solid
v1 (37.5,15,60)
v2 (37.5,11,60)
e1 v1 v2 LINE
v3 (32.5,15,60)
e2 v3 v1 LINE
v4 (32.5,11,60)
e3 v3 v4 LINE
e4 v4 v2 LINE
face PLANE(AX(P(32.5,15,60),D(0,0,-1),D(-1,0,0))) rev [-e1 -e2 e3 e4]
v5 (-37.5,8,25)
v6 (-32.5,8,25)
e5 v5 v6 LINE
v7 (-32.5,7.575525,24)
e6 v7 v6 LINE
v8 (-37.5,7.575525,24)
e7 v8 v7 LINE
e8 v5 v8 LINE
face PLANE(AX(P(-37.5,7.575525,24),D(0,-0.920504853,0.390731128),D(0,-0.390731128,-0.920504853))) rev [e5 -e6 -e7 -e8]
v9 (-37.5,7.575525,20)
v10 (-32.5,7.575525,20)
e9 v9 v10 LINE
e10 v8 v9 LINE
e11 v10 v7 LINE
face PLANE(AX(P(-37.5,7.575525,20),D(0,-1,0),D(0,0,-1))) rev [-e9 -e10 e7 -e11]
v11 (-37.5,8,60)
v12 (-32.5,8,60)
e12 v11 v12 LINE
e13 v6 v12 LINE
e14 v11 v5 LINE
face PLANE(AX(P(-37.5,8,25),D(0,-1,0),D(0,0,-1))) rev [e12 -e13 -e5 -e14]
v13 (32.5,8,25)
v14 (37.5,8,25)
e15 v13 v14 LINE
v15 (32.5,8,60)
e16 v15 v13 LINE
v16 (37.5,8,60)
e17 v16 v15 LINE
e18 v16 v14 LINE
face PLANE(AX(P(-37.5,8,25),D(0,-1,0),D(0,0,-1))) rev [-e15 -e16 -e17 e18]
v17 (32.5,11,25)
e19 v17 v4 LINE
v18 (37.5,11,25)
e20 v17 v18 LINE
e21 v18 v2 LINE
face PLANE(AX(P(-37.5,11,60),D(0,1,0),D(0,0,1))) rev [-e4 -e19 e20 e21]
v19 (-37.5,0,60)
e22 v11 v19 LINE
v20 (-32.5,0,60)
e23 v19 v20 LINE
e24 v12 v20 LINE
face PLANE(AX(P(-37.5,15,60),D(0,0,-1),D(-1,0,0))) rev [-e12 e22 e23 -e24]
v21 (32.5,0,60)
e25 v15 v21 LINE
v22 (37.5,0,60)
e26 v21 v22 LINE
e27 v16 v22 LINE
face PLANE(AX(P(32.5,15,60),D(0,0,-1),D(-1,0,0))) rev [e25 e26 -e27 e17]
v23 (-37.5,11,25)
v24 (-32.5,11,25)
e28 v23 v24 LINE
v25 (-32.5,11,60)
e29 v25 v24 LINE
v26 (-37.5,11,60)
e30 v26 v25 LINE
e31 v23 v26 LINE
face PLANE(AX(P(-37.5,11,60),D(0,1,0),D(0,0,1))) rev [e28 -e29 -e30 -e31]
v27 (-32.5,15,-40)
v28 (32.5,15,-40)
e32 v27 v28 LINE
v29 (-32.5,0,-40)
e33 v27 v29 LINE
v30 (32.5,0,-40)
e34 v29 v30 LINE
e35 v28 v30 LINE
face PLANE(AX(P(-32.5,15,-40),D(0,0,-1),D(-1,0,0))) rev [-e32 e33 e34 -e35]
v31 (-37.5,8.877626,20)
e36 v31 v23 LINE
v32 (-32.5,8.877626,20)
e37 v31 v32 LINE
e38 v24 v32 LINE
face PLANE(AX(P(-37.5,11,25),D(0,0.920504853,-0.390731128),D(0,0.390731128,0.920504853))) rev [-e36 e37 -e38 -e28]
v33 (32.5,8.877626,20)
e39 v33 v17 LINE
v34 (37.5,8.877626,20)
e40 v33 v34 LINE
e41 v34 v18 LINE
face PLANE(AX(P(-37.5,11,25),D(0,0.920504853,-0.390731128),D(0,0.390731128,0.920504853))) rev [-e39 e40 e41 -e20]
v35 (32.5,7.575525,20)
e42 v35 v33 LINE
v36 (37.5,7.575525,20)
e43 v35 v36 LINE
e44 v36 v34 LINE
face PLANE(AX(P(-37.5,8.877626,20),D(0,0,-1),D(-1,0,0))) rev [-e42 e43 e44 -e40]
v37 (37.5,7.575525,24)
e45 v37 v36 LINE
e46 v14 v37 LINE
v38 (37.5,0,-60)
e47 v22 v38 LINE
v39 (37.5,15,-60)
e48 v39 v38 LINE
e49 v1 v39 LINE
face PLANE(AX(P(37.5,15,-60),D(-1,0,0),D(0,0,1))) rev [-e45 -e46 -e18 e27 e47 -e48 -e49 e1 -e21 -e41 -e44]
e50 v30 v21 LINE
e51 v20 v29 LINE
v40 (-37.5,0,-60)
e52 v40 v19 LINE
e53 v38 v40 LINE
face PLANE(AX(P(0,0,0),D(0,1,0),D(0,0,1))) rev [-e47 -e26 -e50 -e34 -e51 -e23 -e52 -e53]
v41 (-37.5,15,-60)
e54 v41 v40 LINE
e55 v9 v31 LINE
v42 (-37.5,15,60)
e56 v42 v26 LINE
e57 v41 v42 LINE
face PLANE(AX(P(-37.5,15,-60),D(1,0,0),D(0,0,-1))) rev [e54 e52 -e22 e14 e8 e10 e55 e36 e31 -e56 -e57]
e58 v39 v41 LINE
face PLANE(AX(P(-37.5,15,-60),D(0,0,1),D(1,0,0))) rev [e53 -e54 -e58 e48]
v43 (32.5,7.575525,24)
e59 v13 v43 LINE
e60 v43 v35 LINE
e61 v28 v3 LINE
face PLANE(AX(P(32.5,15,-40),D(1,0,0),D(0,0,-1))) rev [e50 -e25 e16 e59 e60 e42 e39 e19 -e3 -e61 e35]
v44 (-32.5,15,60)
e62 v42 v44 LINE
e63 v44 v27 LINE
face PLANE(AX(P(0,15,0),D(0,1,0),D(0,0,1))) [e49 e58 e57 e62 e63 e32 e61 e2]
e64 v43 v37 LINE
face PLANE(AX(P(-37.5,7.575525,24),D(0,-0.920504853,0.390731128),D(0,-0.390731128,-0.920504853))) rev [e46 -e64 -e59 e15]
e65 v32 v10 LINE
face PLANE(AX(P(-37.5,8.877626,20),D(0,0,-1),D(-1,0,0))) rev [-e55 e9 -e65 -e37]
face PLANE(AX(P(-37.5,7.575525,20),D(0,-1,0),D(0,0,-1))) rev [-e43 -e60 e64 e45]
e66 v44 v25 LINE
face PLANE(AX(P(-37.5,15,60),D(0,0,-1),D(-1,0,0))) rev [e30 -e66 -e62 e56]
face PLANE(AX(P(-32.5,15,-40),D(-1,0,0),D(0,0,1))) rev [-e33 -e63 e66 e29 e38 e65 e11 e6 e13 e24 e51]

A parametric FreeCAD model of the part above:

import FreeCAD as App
import Part
import Sketcher
from FreeCAD import Vector
Q = App.Units.Quantity

doc = App.newDocument("Part")
body = doc.addObject("PartDesign::Body", "Body")

sketch1 = body.newObject("Sketcher::SketchObject", "Sketch")
sketch1.AttachmentSupport = (doc.getObject("XZ_Plane"), [""])
sketch1.MapMode = "FlatFace"
sketch1.addGeometry(Part.LineSegment(Vector(32, 60, 0), Vector(38, 60, 0)), False)
sketch1.addGeometry(Part.LineSegment(Vector(38, 60, 0), Vector(38, -60, 0)), False)
sketch1.addGeometry(Part.LineSegment(Vector(38, -60, 0), Vector(-38, -60, 0)), False)
sketch1.addGeometry(Part.LineSegment(Vector(-38, -60, 0), Vector(-38, 60, 0)), False)
sketch1.addGeometry(Part.LineSegment(Vector(-38, 60, 0), Vector(-32, 60, 0)), False)
sketch1.addGeometry(Part.LineSegment(Vector(-32, 60, 0), Vector(-32, -40, 0)), False)
sketch1.addGeometry(Part.LineSegment(Vector(-32, -40, 0), Vector(32, -40, 0)), False)
sketch1.addGeometry(Part.LineSegment(Vector(32, -40, 0), Vector(32, 60, 0)), False)
sketch1.addConstraint(Sketcher.Constraint("Coincident", 0, 2, 1, 1))
sketch1.addConstraint(Sketcher.Constraint("Coincident", 1, 2, 2, 1))
sketch1.addConstraint(Sketcher.Constraint("Coincident", 2, 2, 3, 1))
sketch1.addConstraint(Sketcher.Constraint("Coincident", 3, 2, 4, 1))
sketch1.addConstraint(Sketcher.Constraint("Coincident", 4, 2, 5, 1))
sketch1.addConstraint(Sketcher.Constraint("Coincident", 5, 2, 6, 1))
sketch1.addConstraint(Sketcher.Constraint("Coincident", 6, 2, 7, 1))
sketch1.addConstraint(Sketcher.Constraint("Coincident", 7, 2, 0, 1))
sketch1.addConstraint(Sketcher.Constraint("Horizontal", 0))
sketch1.addConstraint(Sketcher.Constraint("Vertical", 1))
sketch1.addConstraint(Sketcher.Constraint("Horizontal", 2))
sketch1.addConstraint(Sketcher.Constraint("Vertical", 3))
sketch1.addConstraint(Sketcher.Constraint("Horizontal", 4))
sketch1.addConstraint(Sketcher.Constraint("Vertical", 5))
sketch1.addConstraint(Sketcher.Constraint("Horizontal", 6))
sketch1.addConstraint(Sketcher.Constraint("Vertical", 7))
sketch1.addConstraint(Sketcher.Constraint("Symmetric", 0, 2, 2, 2, -1, 1))
sketch1.addConstraint(Sketcher.Constraint("Symmetric", 4, 2, 7, 2, -2))
sketch1.addConstraint(Sketcher.Constraint("DistanceX", 0, 1, 0, 2, 5.0))
sketch1.addConstraint(Sketcher.Constraint("DistanceX", 2, 2, 2, 1, 75.0))
sketch1.addConstraint(Sketcher.Constraint("DistanceY", 1, 2, 1, 1, 120.0))
sketch1.addConstraint(Sketcher.Constraint("DistanceY", 5, 2, 5, 1, 100.0))
pad1 = body.newObject("PartDesign::Pad", "Pad")
pad1.Profile = sketch1
pad1.Length = 15
pad1.Reversed = True

sketch2 = body.newObject("Sketcher::SketchObject", "Sketch001")
sketch2.AttachmentSupport = (doc.getObject("YZ_Plane"), [""])
sketch2.MapMode = "FlatFace"
sketch2.addGeometry(Part.LineSegment(Vector(11, 25, 0), Vector(11, 60, 0)), False)
sketch2.addGeometry(Part.LineSegment(Vector(11, 60, 0), Vector(8, 60, 0)), False)
sketch2.addGeometry(Part.LineSegment(Vector(8, 60, 0), Vector(8, 25, 0)), False)
sketch2.addGeometry(Part.LineSegment(Vector(8, 25, 0), Vector(7.6, 24, 0)), False)
sketch2.addGeometry(Part.LineSegment(Vector(7.6, 24, 0), Vector(7.6, 20, 0)), False)
sketch2.addGeometry(Part.LineSegment(Vector(7.6, 20, 0), Vector(8.9, 20, 0)), False)
sketch2.addGeometry(Part.LineSegment(Vector(8.9, 20, 0), Vector(11, 25, 0)), False)
sketch2.addConstraint(Sketcher.Constraint("Coincident", 0, 2, 1, 1))
sketch2.addConstraint(Sketcher.Constraint("Coincident", 1, 2, 2, 1))
sketch2.addConstraint(Sketcher.Constraint("Coincident", 2, 2, 3, 1))
sketch2.addConstraint(Sketcher.Constraint("Coincident", 3, 2, 4, 1))
sketch2.addConstraint(Sketcher.Constraint("Coincident", 4, 2, 5, 1))
sketch2.addConstraint(Sketcher.Constraint("Coincident", 5, 2, 6, 1))
sketch2.addConstraint(Sketcher.Constraint("Coincident", 6, 2, 0, 1))
sketch2.addConstraint(Sketcher.Constraint("Vertical", 0))
sketch2.addConstraint(Sketcher.Constraint("Horizontal", 1))
sketch2.addConstraint(Sketcher.Constraint("Vertical", 2))
sketch2.addConstraint(Sketcher.Constraint("Vertical", 4))
sketch2.addConstraint(Sketcher.Constraint("Horizontal", 5))
sketch2.addConstraint(Sketcher.Constraint("Parallel", 3, 6))
sketch2.addConstraint(Sketcher.Constraint("Horizontal", 2, 2, 6, 2))
sketch2.addConstraint(Sketcher.Constraint("DistanceX", 1, 2, 1, 1, 3.0))
sketch2.addConstraint(Sketcher.Constraint("DistanceY", 0, 1, 0, 2, 35.0))
sketch2.addConstraint(Sketcher.Constraint("DistanceY", 4, 2, 4, 1, 4.0))
sketch2.addConstraint(Sketcher.Constraint("Angle", 3, Q("-113 deg")))
sketch2.addConstraint(Sketcher.Constraint("DistanceX", -1, 1, 0, 2, 11.0))
sketch2.addConstraint(Sketcher.Constraint("DistanceY", -1, 1, 0, 2, 60.0))
sketch2.addConstraint(Sketcher.Constraint("DistanceY", -1, 1, 3, 2, 24.0))
pocket1 = body.newObject("PartDesign::Pocket", "Pocket")
pocket1.Profile = sketch2
pocket1.Length = 75
pocket1.Midplane = True

doc.recompute()
